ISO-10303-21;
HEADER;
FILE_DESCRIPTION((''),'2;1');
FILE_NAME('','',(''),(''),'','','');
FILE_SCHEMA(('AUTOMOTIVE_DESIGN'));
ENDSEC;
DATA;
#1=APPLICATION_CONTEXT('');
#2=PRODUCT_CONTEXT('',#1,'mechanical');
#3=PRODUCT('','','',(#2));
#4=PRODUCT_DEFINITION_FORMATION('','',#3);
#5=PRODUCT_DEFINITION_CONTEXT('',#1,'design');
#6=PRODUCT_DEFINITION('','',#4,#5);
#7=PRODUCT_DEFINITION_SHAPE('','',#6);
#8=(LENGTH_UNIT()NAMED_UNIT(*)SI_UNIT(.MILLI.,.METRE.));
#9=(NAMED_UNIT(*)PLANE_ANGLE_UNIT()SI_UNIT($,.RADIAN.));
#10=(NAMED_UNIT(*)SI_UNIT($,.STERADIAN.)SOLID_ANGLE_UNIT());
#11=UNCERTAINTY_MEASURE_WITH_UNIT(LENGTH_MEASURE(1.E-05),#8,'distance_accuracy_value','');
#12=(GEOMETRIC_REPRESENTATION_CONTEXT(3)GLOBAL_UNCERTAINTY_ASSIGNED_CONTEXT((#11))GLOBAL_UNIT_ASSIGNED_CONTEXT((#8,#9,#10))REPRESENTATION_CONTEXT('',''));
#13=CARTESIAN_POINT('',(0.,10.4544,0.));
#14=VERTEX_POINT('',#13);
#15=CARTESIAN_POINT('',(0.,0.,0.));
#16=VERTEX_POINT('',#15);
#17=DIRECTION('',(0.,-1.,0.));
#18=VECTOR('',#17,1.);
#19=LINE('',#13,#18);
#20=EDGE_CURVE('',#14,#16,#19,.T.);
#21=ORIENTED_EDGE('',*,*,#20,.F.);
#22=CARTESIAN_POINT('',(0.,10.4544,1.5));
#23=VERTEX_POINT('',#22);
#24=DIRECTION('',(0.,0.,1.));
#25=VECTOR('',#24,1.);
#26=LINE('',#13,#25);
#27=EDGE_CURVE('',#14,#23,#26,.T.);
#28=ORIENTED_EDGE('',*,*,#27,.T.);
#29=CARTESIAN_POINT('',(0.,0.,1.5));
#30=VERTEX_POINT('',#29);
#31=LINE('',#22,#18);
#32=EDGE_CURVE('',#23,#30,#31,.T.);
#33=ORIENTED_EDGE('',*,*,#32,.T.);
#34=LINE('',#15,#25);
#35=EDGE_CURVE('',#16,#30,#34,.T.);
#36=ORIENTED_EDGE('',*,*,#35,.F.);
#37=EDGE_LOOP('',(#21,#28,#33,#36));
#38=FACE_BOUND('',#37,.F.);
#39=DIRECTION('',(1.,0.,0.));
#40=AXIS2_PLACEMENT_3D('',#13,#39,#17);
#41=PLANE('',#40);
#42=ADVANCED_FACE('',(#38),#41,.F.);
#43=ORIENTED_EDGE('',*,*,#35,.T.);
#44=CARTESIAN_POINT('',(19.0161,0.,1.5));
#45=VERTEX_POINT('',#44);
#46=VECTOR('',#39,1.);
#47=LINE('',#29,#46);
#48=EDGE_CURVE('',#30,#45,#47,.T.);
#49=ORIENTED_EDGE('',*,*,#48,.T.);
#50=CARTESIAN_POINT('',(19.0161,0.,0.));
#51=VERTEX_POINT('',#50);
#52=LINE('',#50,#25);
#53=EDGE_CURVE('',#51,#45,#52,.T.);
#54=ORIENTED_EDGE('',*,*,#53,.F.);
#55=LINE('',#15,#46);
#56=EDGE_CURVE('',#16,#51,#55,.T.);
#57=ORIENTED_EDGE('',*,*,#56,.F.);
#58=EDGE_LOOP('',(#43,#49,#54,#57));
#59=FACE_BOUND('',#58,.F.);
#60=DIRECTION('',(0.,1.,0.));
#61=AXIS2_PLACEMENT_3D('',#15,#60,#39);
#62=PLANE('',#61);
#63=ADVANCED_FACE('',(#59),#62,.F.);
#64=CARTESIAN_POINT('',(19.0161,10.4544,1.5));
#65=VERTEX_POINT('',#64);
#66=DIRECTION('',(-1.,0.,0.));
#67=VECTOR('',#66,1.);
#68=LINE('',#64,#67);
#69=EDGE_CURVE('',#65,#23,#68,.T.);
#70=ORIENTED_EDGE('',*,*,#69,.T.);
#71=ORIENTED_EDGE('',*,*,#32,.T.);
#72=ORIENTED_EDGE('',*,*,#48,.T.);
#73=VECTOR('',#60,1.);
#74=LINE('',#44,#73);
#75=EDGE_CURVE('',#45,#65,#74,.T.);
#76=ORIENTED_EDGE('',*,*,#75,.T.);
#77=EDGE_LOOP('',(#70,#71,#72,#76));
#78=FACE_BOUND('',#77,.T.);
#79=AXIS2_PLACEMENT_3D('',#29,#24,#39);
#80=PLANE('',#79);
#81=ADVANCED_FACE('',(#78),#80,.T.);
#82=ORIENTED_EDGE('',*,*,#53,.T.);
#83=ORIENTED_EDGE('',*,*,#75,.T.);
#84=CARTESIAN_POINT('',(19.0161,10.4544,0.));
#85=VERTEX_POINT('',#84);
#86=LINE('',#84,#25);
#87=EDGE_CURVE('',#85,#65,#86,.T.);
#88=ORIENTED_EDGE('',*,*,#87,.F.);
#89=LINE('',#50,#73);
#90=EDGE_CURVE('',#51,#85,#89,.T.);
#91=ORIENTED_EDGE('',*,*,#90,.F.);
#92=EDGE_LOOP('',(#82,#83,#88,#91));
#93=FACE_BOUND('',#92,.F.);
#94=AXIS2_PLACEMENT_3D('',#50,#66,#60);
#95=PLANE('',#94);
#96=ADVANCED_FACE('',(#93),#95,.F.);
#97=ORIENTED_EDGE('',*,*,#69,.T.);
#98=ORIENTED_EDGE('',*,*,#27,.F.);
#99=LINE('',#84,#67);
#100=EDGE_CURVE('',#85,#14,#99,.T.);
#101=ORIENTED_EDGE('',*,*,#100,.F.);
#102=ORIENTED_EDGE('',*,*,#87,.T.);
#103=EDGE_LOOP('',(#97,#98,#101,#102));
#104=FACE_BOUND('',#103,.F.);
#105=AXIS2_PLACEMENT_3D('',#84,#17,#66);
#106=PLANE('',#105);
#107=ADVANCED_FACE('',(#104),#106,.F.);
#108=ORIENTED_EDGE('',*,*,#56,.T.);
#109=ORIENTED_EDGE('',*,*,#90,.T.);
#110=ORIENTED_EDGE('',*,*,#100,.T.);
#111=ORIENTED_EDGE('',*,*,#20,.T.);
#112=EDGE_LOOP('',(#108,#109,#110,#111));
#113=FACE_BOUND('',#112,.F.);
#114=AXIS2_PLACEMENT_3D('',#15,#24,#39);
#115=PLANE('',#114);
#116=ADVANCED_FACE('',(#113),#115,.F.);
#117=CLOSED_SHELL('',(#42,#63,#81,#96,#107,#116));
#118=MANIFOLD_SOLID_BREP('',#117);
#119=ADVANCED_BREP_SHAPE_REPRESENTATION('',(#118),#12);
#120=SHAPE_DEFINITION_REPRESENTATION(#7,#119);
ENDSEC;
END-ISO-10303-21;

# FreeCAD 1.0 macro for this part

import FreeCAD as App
import Part
import Sketcher
from FreeCAD import Vector
Q = App.Units.Quantity

doc = App.newDocument("Part")
body = doc.addObject("PartDesign::Body", "Body")

sketch1 = doc.addObject("Sketcher::SketchObject", "Sketch")
body.addObject(sketch1)
sketch1.AttachmentSupport = (doc.XY_Plane, [""])
sketch1.MapMode = "FlatFace"
sketch1.addGeometry([
    Part.LineSegment(Vector(0, 10, 0), Vector(0, 0, 0)),
    Part.LineSegment(Vector(0, 0, 0), Vector(19, 0, 0)),
    Part.LineSegment(Vector(19, 0, 0), Vector(19, 10, 0)),
    Part.LineSegment(Vector(19, 10, 0), Vector(0, 10, 0)),
], False)
sketch1.addConstraint([
    Sketcher.Constraint("Coincident", 0, 2, 1, 1),
    Sketcher.Constraint("Coincident", 1, 2, 2, 1),
    Sketcher.Constraint("Coincident", 2, 2, 3, 1),
    Sketcher.Constraint("Coincident", 3, 2, 0, 1),
    Sketcher.Constraint("Vertical", 0),
    Sketcher.Constraint("Horizontal", 1),
    Sketcher.Constraint("Vertical", 2),
    Sketcher.Constraint("Horizontal", 3),
    Sketcher.Constraint("Coincident", 0, 2, -1, 1),
    Sketcher.Constraint("DistanceX", 1, 1, 1, 2, Q("19.016 mm")),
    Sketcher.Constraint("DistanceY", 0, 2, 0, 1, Q("10.4544 mm")),
])
pad1 = doc.addObject("PartDesign::Pad", "Pad")
body.addObject(pad1)
pad1.Profile = sketch1
pad1.Length = 1.5

doc.recompute()
